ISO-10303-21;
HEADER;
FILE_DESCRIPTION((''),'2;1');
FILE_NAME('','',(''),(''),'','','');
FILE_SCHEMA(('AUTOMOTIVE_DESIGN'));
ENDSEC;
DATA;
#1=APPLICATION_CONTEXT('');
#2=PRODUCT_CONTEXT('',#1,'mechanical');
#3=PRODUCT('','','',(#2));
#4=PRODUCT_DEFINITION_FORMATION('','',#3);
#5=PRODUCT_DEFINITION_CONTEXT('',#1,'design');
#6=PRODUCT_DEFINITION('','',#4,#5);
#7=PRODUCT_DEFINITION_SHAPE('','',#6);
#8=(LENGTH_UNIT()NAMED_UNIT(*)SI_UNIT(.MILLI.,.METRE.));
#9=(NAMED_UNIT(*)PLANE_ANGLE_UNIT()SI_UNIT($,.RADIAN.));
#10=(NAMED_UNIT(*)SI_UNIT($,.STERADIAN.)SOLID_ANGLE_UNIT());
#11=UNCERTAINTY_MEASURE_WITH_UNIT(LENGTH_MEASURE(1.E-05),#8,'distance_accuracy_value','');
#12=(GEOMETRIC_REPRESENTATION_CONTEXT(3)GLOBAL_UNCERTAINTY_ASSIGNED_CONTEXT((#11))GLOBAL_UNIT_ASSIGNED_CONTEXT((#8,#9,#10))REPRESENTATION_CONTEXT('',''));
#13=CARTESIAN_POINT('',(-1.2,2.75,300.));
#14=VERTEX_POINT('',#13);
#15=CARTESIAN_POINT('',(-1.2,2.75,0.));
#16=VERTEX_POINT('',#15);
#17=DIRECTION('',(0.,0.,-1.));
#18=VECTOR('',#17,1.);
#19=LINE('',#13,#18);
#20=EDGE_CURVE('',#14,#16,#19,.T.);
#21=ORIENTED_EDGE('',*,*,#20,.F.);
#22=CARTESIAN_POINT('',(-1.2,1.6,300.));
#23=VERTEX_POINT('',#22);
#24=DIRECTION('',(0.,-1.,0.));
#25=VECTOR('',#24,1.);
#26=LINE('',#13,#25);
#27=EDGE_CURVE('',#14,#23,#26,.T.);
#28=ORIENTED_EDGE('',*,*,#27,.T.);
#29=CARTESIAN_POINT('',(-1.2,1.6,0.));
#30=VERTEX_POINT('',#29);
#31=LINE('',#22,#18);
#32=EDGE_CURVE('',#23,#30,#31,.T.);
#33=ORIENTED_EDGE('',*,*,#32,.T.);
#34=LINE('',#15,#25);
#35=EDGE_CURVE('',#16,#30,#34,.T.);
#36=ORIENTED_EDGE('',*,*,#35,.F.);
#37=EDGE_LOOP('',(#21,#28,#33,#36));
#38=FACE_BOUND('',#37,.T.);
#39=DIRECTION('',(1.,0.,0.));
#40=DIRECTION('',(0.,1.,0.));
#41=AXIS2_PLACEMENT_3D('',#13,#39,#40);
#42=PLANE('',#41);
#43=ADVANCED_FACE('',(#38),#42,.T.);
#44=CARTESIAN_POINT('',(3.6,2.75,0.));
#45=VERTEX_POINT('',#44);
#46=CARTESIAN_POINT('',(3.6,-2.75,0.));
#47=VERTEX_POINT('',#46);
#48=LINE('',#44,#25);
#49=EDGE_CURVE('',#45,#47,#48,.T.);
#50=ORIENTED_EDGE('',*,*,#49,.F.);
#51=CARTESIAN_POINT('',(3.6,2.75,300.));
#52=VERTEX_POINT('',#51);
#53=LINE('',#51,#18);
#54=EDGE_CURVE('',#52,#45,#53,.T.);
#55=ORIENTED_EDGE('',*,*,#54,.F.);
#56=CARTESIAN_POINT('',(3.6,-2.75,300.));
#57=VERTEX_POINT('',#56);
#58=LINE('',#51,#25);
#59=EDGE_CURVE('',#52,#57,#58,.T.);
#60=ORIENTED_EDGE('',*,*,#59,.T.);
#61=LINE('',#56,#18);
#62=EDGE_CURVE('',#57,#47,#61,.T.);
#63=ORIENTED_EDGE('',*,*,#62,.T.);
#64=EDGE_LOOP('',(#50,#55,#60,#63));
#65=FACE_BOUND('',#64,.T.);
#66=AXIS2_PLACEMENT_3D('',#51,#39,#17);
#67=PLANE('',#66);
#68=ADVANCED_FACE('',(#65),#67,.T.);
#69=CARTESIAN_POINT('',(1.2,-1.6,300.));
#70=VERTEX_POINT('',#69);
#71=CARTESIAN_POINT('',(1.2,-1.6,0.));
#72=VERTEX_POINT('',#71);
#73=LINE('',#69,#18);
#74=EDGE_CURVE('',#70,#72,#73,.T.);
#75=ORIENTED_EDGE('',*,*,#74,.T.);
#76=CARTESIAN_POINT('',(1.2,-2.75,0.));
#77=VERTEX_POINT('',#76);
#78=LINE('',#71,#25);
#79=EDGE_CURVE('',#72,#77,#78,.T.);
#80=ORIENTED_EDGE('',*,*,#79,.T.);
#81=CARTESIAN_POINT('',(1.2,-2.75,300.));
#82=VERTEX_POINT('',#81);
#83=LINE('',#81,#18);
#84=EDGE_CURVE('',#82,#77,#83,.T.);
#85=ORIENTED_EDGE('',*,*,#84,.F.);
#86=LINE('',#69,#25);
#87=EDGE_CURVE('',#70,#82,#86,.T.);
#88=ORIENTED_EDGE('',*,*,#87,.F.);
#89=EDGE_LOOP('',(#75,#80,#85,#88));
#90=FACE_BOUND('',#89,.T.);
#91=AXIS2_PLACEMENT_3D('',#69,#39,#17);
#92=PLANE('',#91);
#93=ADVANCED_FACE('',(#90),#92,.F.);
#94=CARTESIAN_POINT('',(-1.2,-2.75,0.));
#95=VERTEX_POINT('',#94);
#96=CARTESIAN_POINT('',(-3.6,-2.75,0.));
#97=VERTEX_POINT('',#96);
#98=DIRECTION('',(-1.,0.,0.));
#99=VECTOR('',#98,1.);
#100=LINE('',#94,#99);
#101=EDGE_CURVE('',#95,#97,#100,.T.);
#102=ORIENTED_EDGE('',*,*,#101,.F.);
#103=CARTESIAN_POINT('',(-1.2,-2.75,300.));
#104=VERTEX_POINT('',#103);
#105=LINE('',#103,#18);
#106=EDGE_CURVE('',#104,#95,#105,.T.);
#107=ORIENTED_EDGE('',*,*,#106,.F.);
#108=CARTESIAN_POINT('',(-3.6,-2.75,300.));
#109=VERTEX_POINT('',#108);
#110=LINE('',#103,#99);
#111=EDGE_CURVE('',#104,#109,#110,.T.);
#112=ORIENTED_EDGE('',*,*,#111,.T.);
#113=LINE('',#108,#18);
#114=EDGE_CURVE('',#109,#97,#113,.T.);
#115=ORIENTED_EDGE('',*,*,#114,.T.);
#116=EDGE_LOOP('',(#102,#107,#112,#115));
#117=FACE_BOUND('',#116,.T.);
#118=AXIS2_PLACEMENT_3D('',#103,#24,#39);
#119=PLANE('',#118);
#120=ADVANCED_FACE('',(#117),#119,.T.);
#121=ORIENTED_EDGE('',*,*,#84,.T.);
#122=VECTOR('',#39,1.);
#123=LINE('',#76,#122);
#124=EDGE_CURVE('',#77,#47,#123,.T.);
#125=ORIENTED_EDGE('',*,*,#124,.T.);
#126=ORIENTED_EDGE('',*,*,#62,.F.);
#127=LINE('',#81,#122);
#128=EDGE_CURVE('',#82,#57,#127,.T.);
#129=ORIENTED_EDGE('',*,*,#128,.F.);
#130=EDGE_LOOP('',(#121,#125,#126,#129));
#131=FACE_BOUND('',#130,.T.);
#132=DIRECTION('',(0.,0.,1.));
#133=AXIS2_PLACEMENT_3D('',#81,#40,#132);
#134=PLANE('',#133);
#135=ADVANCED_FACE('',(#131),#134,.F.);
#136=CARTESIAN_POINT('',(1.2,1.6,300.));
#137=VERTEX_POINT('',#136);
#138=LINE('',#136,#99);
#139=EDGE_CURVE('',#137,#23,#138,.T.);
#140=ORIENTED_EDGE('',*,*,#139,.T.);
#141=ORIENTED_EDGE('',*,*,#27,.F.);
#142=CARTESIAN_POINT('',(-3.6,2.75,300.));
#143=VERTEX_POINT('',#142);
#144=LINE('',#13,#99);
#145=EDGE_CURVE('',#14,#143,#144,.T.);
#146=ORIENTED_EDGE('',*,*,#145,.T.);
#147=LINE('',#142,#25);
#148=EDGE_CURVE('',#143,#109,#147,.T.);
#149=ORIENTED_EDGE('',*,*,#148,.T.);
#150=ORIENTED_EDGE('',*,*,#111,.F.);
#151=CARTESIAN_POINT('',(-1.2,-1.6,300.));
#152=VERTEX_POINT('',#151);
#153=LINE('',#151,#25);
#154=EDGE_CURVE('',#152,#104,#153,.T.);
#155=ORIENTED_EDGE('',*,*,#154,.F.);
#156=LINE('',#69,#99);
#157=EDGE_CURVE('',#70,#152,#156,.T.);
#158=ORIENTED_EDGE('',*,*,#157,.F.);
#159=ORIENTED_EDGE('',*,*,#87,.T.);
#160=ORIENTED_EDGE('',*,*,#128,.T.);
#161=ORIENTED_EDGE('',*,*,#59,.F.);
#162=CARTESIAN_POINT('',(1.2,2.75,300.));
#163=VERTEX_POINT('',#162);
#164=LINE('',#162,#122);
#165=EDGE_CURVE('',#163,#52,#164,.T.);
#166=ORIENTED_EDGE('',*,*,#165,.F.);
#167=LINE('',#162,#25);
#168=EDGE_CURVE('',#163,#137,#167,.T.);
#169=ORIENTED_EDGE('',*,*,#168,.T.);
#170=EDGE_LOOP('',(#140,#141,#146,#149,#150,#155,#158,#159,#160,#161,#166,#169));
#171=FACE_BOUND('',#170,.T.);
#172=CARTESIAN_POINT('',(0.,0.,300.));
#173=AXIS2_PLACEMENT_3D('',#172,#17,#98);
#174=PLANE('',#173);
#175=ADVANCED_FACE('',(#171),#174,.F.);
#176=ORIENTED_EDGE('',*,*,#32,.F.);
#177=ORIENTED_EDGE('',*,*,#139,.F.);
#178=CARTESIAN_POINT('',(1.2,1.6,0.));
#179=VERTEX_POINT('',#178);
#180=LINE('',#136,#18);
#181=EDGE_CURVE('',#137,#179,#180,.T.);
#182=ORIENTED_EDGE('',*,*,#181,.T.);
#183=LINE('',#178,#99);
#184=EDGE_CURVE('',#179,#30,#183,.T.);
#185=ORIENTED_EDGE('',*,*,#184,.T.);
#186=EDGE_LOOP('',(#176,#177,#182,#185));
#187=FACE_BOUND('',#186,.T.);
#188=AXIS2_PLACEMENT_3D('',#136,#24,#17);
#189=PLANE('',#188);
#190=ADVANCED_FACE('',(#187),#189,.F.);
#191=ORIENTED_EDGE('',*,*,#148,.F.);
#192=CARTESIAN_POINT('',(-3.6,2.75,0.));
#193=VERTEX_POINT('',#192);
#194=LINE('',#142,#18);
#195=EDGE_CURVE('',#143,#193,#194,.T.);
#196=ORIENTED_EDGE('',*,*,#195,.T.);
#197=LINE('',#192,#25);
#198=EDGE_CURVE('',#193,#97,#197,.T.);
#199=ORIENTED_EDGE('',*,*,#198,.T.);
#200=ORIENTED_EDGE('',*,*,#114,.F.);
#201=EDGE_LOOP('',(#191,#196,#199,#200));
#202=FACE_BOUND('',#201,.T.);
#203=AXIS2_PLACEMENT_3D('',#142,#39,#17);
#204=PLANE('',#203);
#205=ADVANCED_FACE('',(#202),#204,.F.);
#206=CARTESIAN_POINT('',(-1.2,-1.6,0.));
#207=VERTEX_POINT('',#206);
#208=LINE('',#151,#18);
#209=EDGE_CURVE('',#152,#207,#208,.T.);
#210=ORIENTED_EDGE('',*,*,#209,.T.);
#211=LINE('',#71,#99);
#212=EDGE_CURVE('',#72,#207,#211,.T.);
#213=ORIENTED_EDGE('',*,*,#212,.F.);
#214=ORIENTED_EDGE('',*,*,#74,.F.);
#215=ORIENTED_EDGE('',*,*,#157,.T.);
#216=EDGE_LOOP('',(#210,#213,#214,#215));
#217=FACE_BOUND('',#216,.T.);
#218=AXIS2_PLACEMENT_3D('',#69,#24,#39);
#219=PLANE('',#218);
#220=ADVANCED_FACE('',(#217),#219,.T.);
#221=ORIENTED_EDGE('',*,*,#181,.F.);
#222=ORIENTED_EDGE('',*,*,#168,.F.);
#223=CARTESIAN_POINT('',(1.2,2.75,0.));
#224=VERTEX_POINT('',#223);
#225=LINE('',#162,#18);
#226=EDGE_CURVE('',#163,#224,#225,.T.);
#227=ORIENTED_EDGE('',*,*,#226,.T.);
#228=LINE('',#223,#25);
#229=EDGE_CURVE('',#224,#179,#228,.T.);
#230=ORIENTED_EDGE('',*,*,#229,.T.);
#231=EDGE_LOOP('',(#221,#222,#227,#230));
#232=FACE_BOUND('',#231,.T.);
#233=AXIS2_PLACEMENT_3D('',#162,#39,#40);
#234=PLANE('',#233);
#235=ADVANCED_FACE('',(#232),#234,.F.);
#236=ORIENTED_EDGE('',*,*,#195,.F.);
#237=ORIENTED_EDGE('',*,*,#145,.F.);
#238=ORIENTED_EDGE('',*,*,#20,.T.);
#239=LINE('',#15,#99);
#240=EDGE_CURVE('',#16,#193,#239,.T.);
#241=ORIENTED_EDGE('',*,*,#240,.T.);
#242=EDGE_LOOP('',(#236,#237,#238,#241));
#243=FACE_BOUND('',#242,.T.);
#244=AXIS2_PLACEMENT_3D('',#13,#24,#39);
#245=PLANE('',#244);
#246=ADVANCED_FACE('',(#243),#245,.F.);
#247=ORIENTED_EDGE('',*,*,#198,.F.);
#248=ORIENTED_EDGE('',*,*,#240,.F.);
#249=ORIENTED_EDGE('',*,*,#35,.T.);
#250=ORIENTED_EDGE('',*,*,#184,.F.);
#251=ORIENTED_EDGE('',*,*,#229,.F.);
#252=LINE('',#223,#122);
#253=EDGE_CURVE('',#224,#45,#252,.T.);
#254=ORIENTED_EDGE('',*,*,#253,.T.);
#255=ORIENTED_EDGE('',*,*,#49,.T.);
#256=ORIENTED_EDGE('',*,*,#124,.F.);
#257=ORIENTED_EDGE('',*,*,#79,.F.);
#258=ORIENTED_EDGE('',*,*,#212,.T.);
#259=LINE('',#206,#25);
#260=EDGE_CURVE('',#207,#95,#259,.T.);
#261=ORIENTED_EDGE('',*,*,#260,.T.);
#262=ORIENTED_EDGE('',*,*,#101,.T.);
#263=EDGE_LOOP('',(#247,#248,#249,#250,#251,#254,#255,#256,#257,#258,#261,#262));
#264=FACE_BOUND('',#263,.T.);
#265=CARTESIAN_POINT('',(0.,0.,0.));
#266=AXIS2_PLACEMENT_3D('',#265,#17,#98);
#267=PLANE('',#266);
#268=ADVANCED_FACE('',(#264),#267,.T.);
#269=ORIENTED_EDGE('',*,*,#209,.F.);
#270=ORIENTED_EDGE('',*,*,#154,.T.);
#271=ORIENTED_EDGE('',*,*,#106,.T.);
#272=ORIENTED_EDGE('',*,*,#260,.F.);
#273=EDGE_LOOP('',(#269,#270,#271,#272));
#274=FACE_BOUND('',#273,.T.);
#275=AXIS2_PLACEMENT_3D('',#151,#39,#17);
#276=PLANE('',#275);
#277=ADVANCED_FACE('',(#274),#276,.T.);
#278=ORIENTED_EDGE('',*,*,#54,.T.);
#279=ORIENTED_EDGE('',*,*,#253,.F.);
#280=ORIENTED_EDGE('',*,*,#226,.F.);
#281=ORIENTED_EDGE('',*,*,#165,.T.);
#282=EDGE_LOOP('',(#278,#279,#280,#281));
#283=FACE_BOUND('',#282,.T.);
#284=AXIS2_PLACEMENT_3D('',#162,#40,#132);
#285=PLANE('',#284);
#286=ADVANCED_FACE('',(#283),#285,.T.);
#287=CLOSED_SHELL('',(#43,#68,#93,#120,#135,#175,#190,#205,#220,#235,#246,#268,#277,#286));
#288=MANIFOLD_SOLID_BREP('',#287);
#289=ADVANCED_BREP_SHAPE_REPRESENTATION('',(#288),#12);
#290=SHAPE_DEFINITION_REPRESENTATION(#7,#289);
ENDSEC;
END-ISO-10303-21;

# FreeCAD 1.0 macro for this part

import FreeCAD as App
import Part
import Sketcher
from FreeCAD import Vector


def add_polygon(sketch, points):
    """Adds a closed chain of lines whose ends are joined by coincident constraints."""
    first, n = sketch.GeometryCount, len(points)
    for a, b in zip(points, points[1:] + points[:1]):
        sketch.addGeometry(Part.LineSegment(App.Vector(*a, 0), App.Vector(*b, 0)), False)
    for i in range(n):
        sketch.addConstraint(Sketcher.Constraint("Coincident", first + i, 2, first + (i + 1) % n, 1))

doc = App.newDocument("Part")
body = doc.addObject("PartDesign::Body", "Body")

# Sketch on XY plane
sketch1 = doc.addObject("Sketcher::SketchObject", "Sketch")
body.addObject(sketch1)
sketch1.AttachmentSupport = (doc.XY_Plane, [""])
sketch1.MapMode = "FlatFace"
add_polygon(sketch1, [(-1.2, 2.75), (-3.6, 2.75), (-3.6, -2.75), (-1.2, -2.75), (-1.2, -1.6), (1.2, -1.6), (1.2, -2.75), (3.6, -2.75), (3.6, 2.75), (1.2, 2.75), (1.2, 1.6), (-1.2, 1.6)])  # lines 0-11
sketch1.addConstraint([
    Sketcher.Constraint("Horizontal", 0),
    Sketcher.Constraint("Vertical", 1),
    Sketcher.Constraint("Horizontal", 2),
    Sketcher.Constraint("Vertical", 3),
    Sketcher.Constraint("Horizontal", 4),
    Sketcher.Constraint("Vertical", 5),
    Sketcher.Constraint("Horizontal", 6),
    Sketcher.Constraint("Vertical", 7),
    Sketcher.Constraint("Horizontal", 8),
    Sketcher.Constraint("Vertical", 9),
    Sketcher.Constraint("Horizontal", 10),
    Sketcher.Constraint("Vertical", 11),
    Sketcher.Constraint("Symmetric", 0, 2, 6, 2, -1, 1),
    Sketcher.Constraint("Symmetric", 2, 2, 8, 2, -1, 1),
    Sketcher.Constraint("Symmetric", 4, 2, 10, 2, -1, 1),
    Sketcher.Constraint("Symmetric", 2, 2, 5, 2, -2),
    Sketcher.Constraint("Equal", 2, 4),
    Sketcher.Constraint("DistanceX", 0, 2, 0, 1, 2.4),
    Sketcher.Constraint("DistanceY", 1, 2, 1, 1, 5.5),
    Sketcher.Constraint("DistanceY", 3, 1, 3, 2, 1.15),
])
pad1 = doc.addObject("PartDesign::Pad", "Pad")
body.addObject(pad1)
pad1.Profile = sketch1
pad1.Length = 300

doc.recompute()
